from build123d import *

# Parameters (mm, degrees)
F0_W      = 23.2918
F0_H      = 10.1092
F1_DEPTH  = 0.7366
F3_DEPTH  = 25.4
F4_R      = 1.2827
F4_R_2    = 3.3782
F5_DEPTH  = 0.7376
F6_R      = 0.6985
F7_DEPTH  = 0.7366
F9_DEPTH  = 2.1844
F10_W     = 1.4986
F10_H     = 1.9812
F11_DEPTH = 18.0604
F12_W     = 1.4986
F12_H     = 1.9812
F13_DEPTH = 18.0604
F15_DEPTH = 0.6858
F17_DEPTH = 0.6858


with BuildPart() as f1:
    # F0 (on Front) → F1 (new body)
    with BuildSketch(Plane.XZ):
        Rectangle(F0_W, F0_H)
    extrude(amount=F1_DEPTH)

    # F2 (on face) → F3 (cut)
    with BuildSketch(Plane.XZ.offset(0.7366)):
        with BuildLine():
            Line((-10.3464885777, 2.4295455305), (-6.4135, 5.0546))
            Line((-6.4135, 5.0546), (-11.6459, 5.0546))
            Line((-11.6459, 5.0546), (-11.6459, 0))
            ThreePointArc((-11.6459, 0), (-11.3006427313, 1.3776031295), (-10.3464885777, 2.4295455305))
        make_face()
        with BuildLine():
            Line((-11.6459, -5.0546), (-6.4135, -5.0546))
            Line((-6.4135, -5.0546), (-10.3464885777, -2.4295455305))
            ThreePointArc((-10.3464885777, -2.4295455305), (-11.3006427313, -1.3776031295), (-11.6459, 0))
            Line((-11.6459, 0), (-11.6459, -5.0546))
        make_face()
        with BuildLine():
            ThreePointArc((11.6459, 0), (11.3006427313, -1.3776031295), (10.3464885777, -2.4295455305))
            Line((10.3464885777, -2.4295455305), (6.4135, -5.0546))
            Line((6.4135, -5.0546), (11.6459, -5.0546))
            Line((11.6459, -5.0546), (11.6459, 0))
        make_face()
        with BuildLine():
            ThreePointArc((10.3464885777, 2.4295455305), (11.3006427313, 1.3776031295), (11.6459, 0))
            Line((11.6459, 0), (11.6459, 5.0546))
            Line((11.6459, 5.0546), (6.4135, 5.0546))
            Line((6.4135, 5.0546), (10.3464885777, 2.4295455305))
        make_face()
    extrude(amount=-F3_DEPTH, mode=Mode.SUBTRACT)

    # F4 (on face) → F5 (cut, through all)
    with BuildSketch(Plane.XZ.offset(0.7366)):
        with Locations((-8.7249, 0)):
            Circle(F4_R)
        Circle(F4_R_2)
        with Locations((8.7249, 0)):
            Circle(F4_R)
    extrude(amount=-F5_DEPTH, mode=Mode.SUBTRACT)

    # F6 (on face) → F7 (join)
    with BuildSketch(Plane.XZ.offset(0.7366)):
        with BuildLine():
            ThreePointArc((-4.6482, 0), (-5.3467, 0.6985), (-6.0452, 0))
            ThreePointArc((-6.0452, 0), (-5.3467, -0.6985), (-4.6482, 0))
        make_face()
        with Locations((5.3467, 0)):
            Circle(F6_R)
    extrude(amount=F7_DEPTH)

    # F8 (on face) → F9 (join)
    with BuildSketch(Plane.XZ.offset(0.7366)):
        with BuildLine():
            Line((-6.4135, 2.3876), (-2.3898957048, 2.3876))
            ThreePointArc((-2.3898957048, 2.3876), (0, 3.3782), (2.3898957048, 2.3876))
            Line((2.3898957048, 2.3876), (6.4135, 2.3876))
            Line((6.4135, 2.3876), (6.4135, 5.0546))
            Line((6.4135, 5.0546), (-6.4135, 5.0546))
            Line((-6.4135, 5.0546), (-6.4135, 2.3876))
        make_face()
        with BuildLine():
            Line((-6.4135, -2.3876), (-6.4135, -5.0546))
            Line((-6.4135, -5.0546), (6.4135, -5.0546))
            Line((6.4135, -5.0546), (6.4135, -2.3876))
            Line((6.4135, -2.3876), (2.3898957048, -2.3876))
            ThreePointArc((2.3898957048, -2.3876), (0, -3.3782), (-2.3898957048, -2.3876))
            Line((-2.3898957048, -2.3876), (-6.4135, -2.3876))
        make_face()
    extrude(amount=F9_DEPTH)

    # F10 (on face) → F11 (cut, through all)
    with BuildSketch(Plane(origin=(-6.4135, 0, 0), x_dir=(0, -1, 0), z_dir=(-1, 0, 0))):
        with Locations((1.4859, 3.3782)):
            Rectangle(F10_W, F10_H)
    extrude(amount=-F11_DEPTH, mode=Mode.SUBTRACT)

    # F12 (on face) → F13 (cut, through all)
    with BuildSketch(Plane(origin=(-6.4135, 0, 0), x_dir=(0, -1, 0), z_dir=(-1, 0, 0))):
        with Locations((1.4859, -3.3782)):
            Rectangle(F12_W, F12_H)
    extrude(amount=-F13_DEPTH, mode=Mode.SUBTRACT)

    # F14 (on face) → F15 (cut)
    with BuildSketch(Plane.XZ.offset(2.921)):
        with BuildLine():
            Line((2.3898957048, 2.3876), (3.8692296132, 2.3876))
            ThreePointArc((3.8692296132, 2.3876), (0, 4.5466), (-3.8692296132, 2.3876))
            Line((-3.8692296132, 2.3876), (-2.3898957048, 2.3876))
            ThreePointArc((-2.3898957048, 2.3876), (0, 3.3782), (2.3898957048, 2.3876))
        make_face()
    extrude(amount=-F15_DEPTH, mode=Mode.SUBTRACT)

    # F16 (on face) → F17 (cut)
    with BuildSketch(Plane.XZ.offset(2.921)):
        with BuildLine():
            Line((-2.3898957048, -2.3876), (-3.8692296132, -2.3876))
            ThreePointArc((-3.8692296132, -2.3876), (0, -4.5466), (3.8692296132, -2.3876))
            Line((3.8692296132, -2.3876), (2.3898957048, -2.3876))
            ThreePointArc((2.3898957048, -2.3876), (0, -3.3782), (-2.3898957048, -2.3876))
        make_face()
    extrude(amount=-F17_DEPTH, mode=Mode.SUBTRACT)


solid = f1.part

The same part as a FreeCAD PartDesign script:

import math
import FreeCAD as App
import Part
import Sketcher
from FreeCAD import Vector
Q = App.Units.Quantity


def add_polygon(sketch, points):
    """Adds a closed chain of lines whose ends are joined by coincident constraints."""
    first, n = sketch.GeometryCount, len(points)
    for a, b in zip(points, points[1:] + points[:1]):
        sketch.addGeometry(Part.LineSegment(App.Vector(*a, 0), App.Vector(*b, 0)), False)
    for i in range(n):
        sketch.addConstraint(Sketcher.Constraint("Coincident", first + i, 2, first + (i + 1) % n, 1))

doc = App.newDocument("Part")
body = doc.addObject("PartDesign::Body", "Body")

# Sketch on XZ plane
sketch1 = doc.addObject("Sketcher::SketchObject", "Sketch")
body.addObject(sketch1)
sketch1.AttachmentSupport = (doc.XZ_Plane, [""])
sketch1.MapMode = "FlatFace"
add_polygon(sketch1, [(-12, 5), (-12, -5), (12, -5), (12, 5)])  # lines 0-3
sketch1.addConstraint([
    Sketcher.Constraint("Vertical", 0),
    Sketcher.Constraint("Horizontal", 1),
    Sketcher.Constraint("Vertical", 2),
    Sketcher.Constraint("Horizontal", 3),
    Sketcher.Constraint("Symmetric", 0, 2, 2, 2, -1, 1),
    Sketcher.Constraint("DistanceX", 1, 1, 1, 2, Q("0.917 in")),
    Sketcher.Constraint("DistanceY", 0, 2, 0, 1, Q("0.398 in")),
])
pad1 = doc.addObject("PartDesign::Pad", "Pad")
body.addObject(pad1)
pad1.Profile = sketch1
pad1.Length = Q("0.029 in")

# Sketch on XZ plane
sketch2 = doc.addObject("Sketcher::SketchObject", "Sketch001")
body.addObject(sketch2)
sketch2.AttachmentSupport = (doc.XZ_Plane, [""])
sketch2.MapMode = "FlatFace"
sketch2.AttachmentOffset = App.Placement(Vector(0, 0, 0.029 * 25.4), App.Rotation())
sketch2.addGeometry([
    Part.LineSegment(Vector(-10.3, 2.4, 0), Vector(-6.4, 5.1, 0)),  # 0
    Part.LineSegment(Vector(-6.4, 5.1, 0), Vector(-11.6, 5.1, 0)),  # 1
    Part.LineSegment(Vector(-11.6, 5.1, 0), Vector(-11.6, 0, 0)),  # 2
    Part.ArcOfCircle(Part.Circle(Vector(-8.7, 0, 0), Vector(0, 0, 1), 2.9), math.radians(124), math.radians(180)),  # 3
    Part.LineSegment(Vector(-11.6, -5.1, 0), Vector(-6.4, -5.1, 0)),  # 4
    Part.LineSegment(Vector(-6.4, -5.1, 0), Vector(-10.3, -2.4, 0)),  # 5
    Part.ArcOfCircle(Part.Circle(Vector(-8.7, 0, 0), Vector(0, 0, 1), 2.9), math.radians(180), math.radians(236)),  # 6
    Part.LineSegment(Vector(-11.6, 0, 0), Vector(-11.6, -5.1, 0)),  # 7
    Part.ArcOfCircle(Part.Circle(Vector(8.7, 0, 0), Vector(0, 0, 1), 2.9), math.radians(-56), math.radians(0)),  # 8
    Part.LineSegment(Vector(10.3, -2.4, 0), Vector(6.4, -5.1, 0)),  # 9
    Part.LineSegment(Vector(6.4, -5.1, 0), Vector(11.6, -5.1, 0)),  # 10
    Part.LineSegment(Vector(11.6, -5.1, 0), Vector(11.6, 0, 0)),  # 11
    Part.ArcOfCircle(Part.Circle(Vector(8.7, 0, 0), Vector(0, 0, 1), 2.9), math.radians(0), math.radians(56)),  # 12
    Part.LineSegment(Vector(11.6, 0, 0), Vector(11.6, 5.1, 0)),  # 13
    Part.LineSegment(Vector(11.6, 5.1, 0), Vector(6.4, 5.1, 0)),  # 14
    Part.LineSegment(Vector(6.4, 5.1, 0), Vector(10.3, 2.4, 0)),  # 15
], False)
sketch2.addConstraint([
    Sketcher.Constraint("Coincident", 0, 2, 1, 1),
    Sketcher.Constraint("Coincident", 1, 2, 2, 1),
    Sketcher.Constraint("Tangent", 2, 2, 3, 2),
    Sketcher.Constraint("Tangent", 3, 1, 0, 1),
    Sketcher.Constraint("Coincident", 4, 2, 5, 1),
    Sketcher.Constraint("Tangent", 5, 2, 6, 2),
    Sketcher.Constraint("Tangent", 6, 1, 7, 1),
    Sketcher.Constraint("Coincident", 7, 2, 4, 1),
    Sketcher.Constraint("Tangent", 8, 1, 9, 1),
    Sketcher.Constraint("Coincident", 9, 2, 10, 1),
    Sketcher.Constraint("Coincident", 10, 2, 11, 1),
    Sketcher.Constraint("Tangent", 11, 2, 8, 2),
    Sketcher.Constraint("Tangent", 12, 1, 13, 1),
    Sketcher.Constraint("Coincident", 13, 2, 14, 1),
    Sketcher.Constraint("Coincident", 14, 2, 15, 1),
    Sketcher.Constraint("Tangent", 15, 2, 12, 2),
    Sketcher.Constraint("Horizontal", 1),
    Sketcher.Constraint("Vertical", 2),
    Sketcher.Constraint("Horizontal", 4),
    Sketcher.Constraint("Vertical", 7),
    Sketcher.Constraint("Horizontal", 10),
    Sketcher.Constraint("Vertical", 11),
    Sketcher.Constraint("Vertical", 13),
    Sketcher.Constraint("Horizontal", 14),
    Sketcher.Constraint("Coincident", 6, 3, 3, 3),
    Sketcher.Constraint("Coincident", 12, 3, 8, 3),
    Sketcher.Constraint("Equal", 3, 6),
    Sketcher.Constraint("Equal", 6, 8),
    Sketcher.Constraint("Equal", 8, 12),
    Sketcher.Constraint("Symmetric", 3, 3, 8, 3, -1, 1),
    Sketcher.Constraint("Symmetric", 0, 2, 9, 2, -1, 1),
    Sketcher.Constraint("Symmetric", 4, 2, 14, 2, -1, 1),
    Sketcher.Constraint("Symmetric", 5, 2, 8, 1, -2),
    Sketcher.Constraint("Horizontal", 7, 2, 9, 2),
    Sketcher.Constraint("Radius", 3, Q("0.115 in")),
    Sketcher.Constraint("DistanceX", 1, 2, 1, 1, Q("0.206 in")),
    Sketcher.Constraint("DistanceY", 2, 2, 2, 1, Q("0.199 in")),
    Sketcher.Constraint("DistanceX", 3, 3, 8, 3, Q("0.687 in")),
])
pocket1 = doc.addObject("PartDesign::Pocket", "Pocket")
body.addObject(pocket1)
pocket1.Profile = sketch2
pocket1.Length = Q("1 in")

# Sketch on XZ plane
sketch3 = doc.addObject("Sketcher::SketchObject", "Sketch002")
body.addObject(sketch3)
sketch3.AttachmentSupport = (doc.XZ_Plane, [""])
sketch3.MapMode = "FlatFace"
sketch3.AttachmentOffset = App.Placement(Vector(0, 0, 0.029 * 25.4), App.Rotation())
sketch3.addGeometry([
    Part.Circle(Vector(-8.7, 0, 0), Vector(0, 0, 1), 1.3),
    Part.Circle(Vector(0, 0, 0), Vector(0, 0, 1), 3.4),
    Part.Circle(Vector(8.7, 0, 0), Vector(0, 0, 1), 1.3),
], False)
sketch3.addConstraint([
    Sketcher.Constraint("Coincident", 1, 3, -1, 1),
    Sketcher.Constraint("Equal", 0, 2),
    Sketcher.Constraint("Symmetric", 0, 3, 2, 3, -1, 1),
    Sketcher.Constraint("PointOnObject", 0, 3, -1),
    Sketcher.Constraint("Diameter", 0, Q("0.101 in")),
    Sketcher.Constraint("Diameter", 1, Q("0.266 in")),
    Sketcher.Constraint("DistanceX", 0, 3, 2, 3, Q("0.687 in")),
])
pocket2 = doc.addObject("PartDesign::Pocket", "Pocket001")
body.addObject(pocket2)
pocket2.Profile = sketch3
pocket2.Type = "ThroughAll"

# Sketch on XZ plane
sketch4 = doc.addObject("Sketcher::SketchObject", "Sketch003")
body.addObject(sketch4)
sketch4.AttachmentSupport = (doc.XZ_Plane, [""])
sketch4.MapMode = "FlatFace"
sketch4.AttachmentOffset = App.Placement(Vector(0, 0, 0.029 * 25.4), App.Rotation())
sketch4.addGeometry([
    Part.Circle(Vector(-5.3, 0, 0), Vector(0, 0, 1), 0.7),
    Part.Circle(Vector(5.3, 0, 0), Vector(0, 0, 1), 0.7),
], False)
sketch4.addConstraint([
    Sketcher.Constraint("Equal", 0, 1),
    Sketcher.Constraint("Symmetric", 0, 3, 1, 3, -1, 1),
    Sketcher.Constraint("PointOnObject", 0, 3, -1),
    Sketcher.Constraint("Diameter", 0, Q("0.055 in")),
    Sketcher.Constraint("DistanceX", 0, 3, 1, 3, Q("0.421 in")),
])
pad2 = doc.addObject("PartDesign::Pad", "Pad001")
body.addObject(pad2)
pad2.Profile = sketch4
pad2.Length = Q("0.029 in")

# Sketch on XZ plane
sketch5 = doc.addObject("Sketcher::SketchObject", "Sketch004")
body.addObject(sketch5)
sketch5.AttachmentSupport = (doc.XZ_Plane, [""])
sketch5.MapMode = "FlatFace"
sketch5.AttachmentOffset = App.Placement(Vector(0, 0, 0.029 * 25.4), App.Rotation())
sketch5.addGeometry([
    Part.LineSegment(Vector(-6.4, 2.4, 0), Vector(-2.4, 2.4, 0)),  # 0
    Part.ArcOfCircle(Part.Circle(Vector(0, 0, 0), Vector(0, 0, 1), 3.4), math.radians(45), math.radians(135)),  # 1
    Part.LineSegment(Vector(2.4, 2.4, 0), Vector(6.4, 2.4, 0)),  # 2
    Part.LineSegment(Vector(6.4, 2.4, 0), Vector(6.4, 5.1, 0)),  # 3
    Part.LineSegment(Vector(6.4, 5.1, 0), Vector(-6.4, 5.1, 0)),  # 4
    Part.LineSegment(Vector(-6.4, 5.1, 0), Vector(-6.4, 2.4, 0)),  # 5
    Part.LineSegment(Vector(-6.4, -2.4, 0), Vector(-6.4, -5.1, 0)),  # 6
    Part.LineSegment(Vector(-6.4, -5.1, 0), Vector(6.4, -5.1, 0)),  # 7
    Part.LineSegment(Vector(6.4, -5.1, 0), Vector(6.4, -2.4, 0)),  # 8
    Part.LineSegment(Vector(6.4, -2.4, 0), Vector(2.4, -2.4, 0)),  # 9
    Part.ArcOfCircle(Part.Circle(Vector(0, 0, 0), Vector(0, 0, 1), 3.4), math.radians(-135), math.radians(-45)),  # 10
    Part.LineSegment(Vector(-2.4, -2.4, 0), Vector(-6.4, -2.4, 0)),  # 11
], False)
sketch5.addConstraint([
    Sketcher.Constraint("Coincident", 0, 2, 1, 2),
    Sketcher.Constraint("Coincident", 1, 1, 2, 1),
    Sketcher.Constraint("Coincident", 2, 2, 3, 1),
    Sketcher.Constraint("Coincident", 3, 2, 4, 1),
    Sketcher.Constraint("Coincident", 4, 2, 5, 1),
    Sketcher.Constraint("Coincident", 5, 2, 0, 1),
    Sketcher.Constraint("Coincident", 6, 2, 7, 1),
    Sketcher.Constraint("Coincident", 7, 2, 8, 1),
    Sketcher.Constraint("Coincident", 8, 2, 9, 1),
    Sketcher.Constraint("Coincident", 9, 2, 10, 2),
    Sketcher.Constraint("Coincident", 10, 1, 11, 1),
    Sketcher.Constraint("Coincident", 11, 2, 6, 1),
    Sketcher.Constraint("Horizontal", 0),
    Sketcher.Constraint("Horizontal", 2),
    Sketcher.Constraint("Vertical", 3),
    Sketcher.Constraint("Horizontal", 4),
    Sketcher.Constraint("Vertical", 5),
    Sketcher.Constraint("Vertical", 6),
    Sketcher.Constraint("Horizontal", 7),
    Sketcher.Constraint("Vertical", 8),
    Sketcher.Constraint("Horizontal", 9),
    Sketcher.Constraint("Horizontal", 11),
    Sketcher.Constraint("Coincident", 1, 3, -1, 1),
    Sketcher.Constraint("Coincident", 10, 3, -1, 1),
    Sketcher.Constraint("Equal", 1, 10),
    Sketcher.Constraint("Symmetric", 3, 2, 6, 2, -1, 1),
    Sketcher.Constraint("Symmetric", 5, 2, 8, 2, -1, 1),
    Sketcher.Constraint("Symmetric", 2, 2, 5, 2, -2),
    Sketcher.Constraint("Horizontal", 9, 2, 10, 1),
    Sketcher.Constraint("Radius", 1, Q("0.133 in")),
    Sketcher.Constraint("DistanceX", 4, 2, 4, 1, Q("0.505 in")),
    Sketcher.Constraint("DistanceY", 3, 1, 3, 2, Q("0.105 in")),
    Sketcher.Constraint("DistanceY", -1, 1, 0, 2, Q("0.094 in")),
])
pad3 = doc.addObject("PartDesign::Pad", "Pad002")
body.addObject(pad3)
pad3.Profile = sketch5
pad3.Length = Q("0.086 in")

# Sketch on YZ plane
sketch6 = doc.addObject("Sketcher::SketchObject", "Sketch005")
body.addObject(sketch6)
sketch6.AttachmentSupport = (doc.YZ_Plane, [""])
sketch6.MapMode = "FlatFace"
sketch6.AttachmentOffset = App.Placement(Vector(0, 0, -0.2525 * 25.4), App.Rotation())
add_polygon(sketch6, [(-0.7, 4.4), (-0.7, 2.4), (-2.2, 2.4), (-2.2, 4.4)])  # lines 0-3
sketch6.addConstraint([
    Sketcher.Constraint("Vertical", 0),
    Sketcher.Constraint("Horizontal", 1),
    Sketcher.Constraint("Vertical", 2),
    Sketcher.Constraint("Horizontal", 3),
    Sketcher.Constraint("DistanceX", 1, 2, 1, 1, Q("0.059 in")),
    Sketcher.Constraint("DistanceY", 0, 2, 0, 1, Q("0.078 in")),
    Sketcher.Constraint("DistanceX", 0, 2, -1, 1, Q("0.029 in")),
    Sketcher.Constraint("DistanceY", -1, 1, 0, 2, Q("0.094 in")),
])
pocket3 = doc.addObject("PartDesign::Pocket", "Pocket002")
body.addObject(pocket3)
pocket3.Profile = sketch6
pocket3.Type = "ThroughAll"
pocket3.Reversed = True

# Sketch on YZ plane
sketch7 = doc.addObject("Sketcher::SketchObject", "Sketch006")
body.addObject(sketch7)
sketch7.AttachmentSupport = (doc.YZ_Plane, [""])
sketch7.MapMode = "FlatFace"
sketch7.AttachmentOffset = App.Placement(Vector(0, 0, -0.2525 * 25.4), App.Rotation())
add_polygon(sketch7, [(-0.7, -2.4), (-0.7, -4.4), (-2.2, -4.4), (-2.2, -2.4)])  # lines 0-3
sketch7.addConstraint([
    Sketcher.Constraint("Vertical", 0),
    Sketcher.Constraint("Horizontal", 1),
    Sketcher.Constraint("Vertical", 2),
    Sketcher.Constraint("Horizontal", 3),
    Sketcher.Constraint("DistanceX", 1, 2, 1, 1, Q("0.059 in")),
    Sketcher.Constraint("DistanceY", 0, 2, 0, 1, Q("0.078 in")),
    Sketcher.Constraint("DistanceX", 0, 2, -1, 1, Q("0.029 in")),
    Sketcher.Constraint("DistanceY", 0, 2, -1, 1, Q("0.172 in")),
])
pocket4 = doc.addObject("PartDesign::Pocket", "Pocket003")
body.addObject(pocket4)
pocket4.Profile = sketch7
pocket4.Type = "ThroughAll"
pocket4.Reversed = True

# Sketch on XZ plane
sketch8 = doc.addObject("Sketcher::SketchObject", "Sketch007")
body.addObject(sketch8)
sketch8.AttachmentSupport = (doc.XZ_Plane, [""])
sketch8.MapMode = "FlatFace"
sketch8.AttachmentOffset = App.Placement(Vector(0, 0, 0.115 * 25.4), App.Rotation())
sketch8.addGeometry([
    Part.LineSegment(Vector(2.4, 2.4, 0), Vector(3.9, 2.4, 0)),
    Part.ArcOfCircle(Part.Circle(Vector(0, 0, 0), Vector(0, 0, 1), 4.5), math.radians(32), math.radians(148)),
    Part.LineSegment(Vector(-3.9, 2.4, 0), Vector(-2.4, 2.4, 0)),
    Part.ArcOfCircle(Part.Circle(Vector(0, 0, 0), Vector(0, 0, 1), 3.4), math.radians(45), math.radians(135)),
], False)
sketch8.addConstraint([
    Sketcher.Constraint("Coincident", 0, 2, 1, 1),
    Sketcher.Constraint("Coincident", 1, 2, 2, 1),
    Sketcher.Constraint("Coincident", 2, 2, 3, 2),
    Sketcher.Constraint("Coincident", 3, 1, 0, 1),
    Sketcher.Constraint("Horizontal", 0),
    Sketcher.Constraint("Horizontal", 2),
    Sketcher.Constraint("Coincident", 1, 3, -1, 1),
    Sketcher.Constraint("Coincident", 3, 3, -1, 1),
    Sketcher.Constraint("Horizontal", 0, 2, 1, 2),
    Sketcher.Constraint("Radius", 1, Q("0.179 in")),
    Sketcher.Constraint("Radius", 3, Q("0.133 in")),
    Sketcher.Constraint("DistanceY", -1, 1, 0, 2, Q("0.094 in")),
])
pocket5 = doc.addObject("PartDesign::Pocket", "Pocket004")
body.addObject(pocket5)
pocket5.Profile = sketch8
pocket5.Length = Q("0.027 in")

# Sketch on XZ plane
sketch9 = doc.addObject("Sketcher::SketchObject", "Sketch008")
body.addObject(sketch9)
sketch9.AttachmentSupport = (doc.XZ_Plane, [""])
sketch9.MapMode = "FlatFace"
sketch9.AttachmentOffset = App.Placement(Vector(0, 0, 0.115 * 25.4), App.Rotation())
sketch9.addGeometry([
    Part.LineSegment(Vector(-2.4, -2.4, 0), Vector(-3.9, -2.4, 0)),
    Part.ArcOfCircle(Part.Circle(Vector(0, 0, 0), Vector(0, 0, 1), 4.5), math.radians(-148), math.radians(-32)),
    Part.LineSegment(Vector(3.9, -2.4, 0), Vector(2.4, -2.4, 0)),
    Part.ArcOfCircle(Part.Circle(Vector(0, 0, 0), Vector(0, 0, 1), 3.4), math.radians(-135), math.radians(-45)),
], False)
sketch9.addConstraint([
    Sketcher.Constraint("Coincident", 0, 2, 1, 1),
    Sketcher.Constraint("Coincident", 1, 2, 2, 1),
    Sketcher.Constraint("Coincident", 2, 2, 3, 2),
    Sketcher.Constraint("Coincident", 3, 1, 0, 1),
    Sketcher.Constraint("Horizontal", 0),
    Sketcher.Constraint("Horizontal", 2),
    Sketcher.Constraint("Coincident", 1, 3, -1, 1),
    Sketcher.Constraint("Coincident", 3, 3, -1, 1),
    Sketcher.Constraint("Horizontal", 0, 2, 1, 2),
    Sketcher.Constraint("Radius", 1, Q("0.179 in")),
    Sketcher.Constraint("Radius", 3, Q("0.133 in")),
    Sketcher.Constraint("DistanceY", 0, 2, -1, 1, Q("0.094 in")),
])
pocket6 = doc.addObject("PartDesign::Pocket", "Pocket005")
body.addObject(pocket6)
pocket6.Profile = sketch9
pocket6.Length = Q("0.027 in")

doc.recompute()
